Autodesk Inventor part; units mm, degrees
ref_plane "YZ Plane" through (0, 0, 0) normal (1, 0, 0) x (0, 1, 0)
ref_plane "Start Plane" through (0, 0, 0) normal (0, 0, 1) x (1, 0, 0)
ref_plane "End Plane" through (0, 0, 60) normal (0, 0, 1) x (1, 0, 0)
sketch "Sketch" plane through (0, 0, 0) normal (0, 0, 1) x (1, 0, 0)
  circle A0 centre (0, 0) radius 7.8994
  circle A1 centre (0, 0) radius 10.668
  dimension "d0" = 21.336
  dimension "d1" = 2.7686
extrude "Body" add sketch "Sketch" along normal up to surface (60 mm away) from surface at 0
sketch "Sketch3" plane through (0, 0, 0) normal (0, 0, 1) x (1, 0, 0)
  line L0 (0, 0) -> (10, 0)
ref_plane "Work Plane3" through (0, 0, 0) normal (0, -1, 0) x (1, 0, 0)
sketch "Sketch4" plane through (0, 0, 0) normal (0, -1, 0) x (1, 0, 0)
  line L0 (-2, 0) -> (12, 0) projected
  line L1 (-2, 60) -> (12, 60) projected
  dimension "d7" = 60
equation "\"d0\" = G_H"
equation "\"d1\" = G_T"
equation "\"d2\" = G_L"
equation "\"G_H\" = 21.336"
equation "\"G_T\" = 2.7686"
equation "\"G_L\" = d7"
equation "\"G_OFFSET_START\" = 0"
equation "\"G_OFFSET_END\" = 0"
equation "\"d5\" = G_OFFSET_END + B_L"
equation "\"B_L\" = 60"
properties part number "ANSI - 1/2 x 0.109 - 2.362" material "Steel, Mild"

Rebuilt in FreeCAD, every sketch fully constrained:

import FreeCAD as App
import Part
import Sketcher

V = App.Vector
Q = App.Units.Quantity

doc = App.newDocument("Part")
body = doc.addObject("PartDesign::Body", "Body")

sketch1 = body.newObject("Sketcher::SketchObject", "Sketch")
sketch1.AttachmentSupport = (doc.getObject("XY_Plane"), [""])
sketch1.MapMode = "FlatFace"
sketch1.addGeometry([
    Part.Circle(V(0, 0, 0), V(0, 0, 1), 10.668),
    Part.Circle(V(0, 0, 0), V(0, 0, 1), 7.8994),
], False)
sketch1.addConstraint([
    Sketcher.Constraint("Coincident", 0, 3, -1, 1),
    Sketcher.Constraint("Coincident", 1, 3, -1, 1),
    Sketcher.Constraint("Diameter", 0, Q("0.84 in")),
    Sketcher.Constraint("Diameter", 1, Q("0.622 in")),
])
pad1 = body.newObject("PartDesign::Pad", "Pad")
pad1.Profile = sketch1
pad1.Length = Q("2.3622047 in")

doc.recompute()
